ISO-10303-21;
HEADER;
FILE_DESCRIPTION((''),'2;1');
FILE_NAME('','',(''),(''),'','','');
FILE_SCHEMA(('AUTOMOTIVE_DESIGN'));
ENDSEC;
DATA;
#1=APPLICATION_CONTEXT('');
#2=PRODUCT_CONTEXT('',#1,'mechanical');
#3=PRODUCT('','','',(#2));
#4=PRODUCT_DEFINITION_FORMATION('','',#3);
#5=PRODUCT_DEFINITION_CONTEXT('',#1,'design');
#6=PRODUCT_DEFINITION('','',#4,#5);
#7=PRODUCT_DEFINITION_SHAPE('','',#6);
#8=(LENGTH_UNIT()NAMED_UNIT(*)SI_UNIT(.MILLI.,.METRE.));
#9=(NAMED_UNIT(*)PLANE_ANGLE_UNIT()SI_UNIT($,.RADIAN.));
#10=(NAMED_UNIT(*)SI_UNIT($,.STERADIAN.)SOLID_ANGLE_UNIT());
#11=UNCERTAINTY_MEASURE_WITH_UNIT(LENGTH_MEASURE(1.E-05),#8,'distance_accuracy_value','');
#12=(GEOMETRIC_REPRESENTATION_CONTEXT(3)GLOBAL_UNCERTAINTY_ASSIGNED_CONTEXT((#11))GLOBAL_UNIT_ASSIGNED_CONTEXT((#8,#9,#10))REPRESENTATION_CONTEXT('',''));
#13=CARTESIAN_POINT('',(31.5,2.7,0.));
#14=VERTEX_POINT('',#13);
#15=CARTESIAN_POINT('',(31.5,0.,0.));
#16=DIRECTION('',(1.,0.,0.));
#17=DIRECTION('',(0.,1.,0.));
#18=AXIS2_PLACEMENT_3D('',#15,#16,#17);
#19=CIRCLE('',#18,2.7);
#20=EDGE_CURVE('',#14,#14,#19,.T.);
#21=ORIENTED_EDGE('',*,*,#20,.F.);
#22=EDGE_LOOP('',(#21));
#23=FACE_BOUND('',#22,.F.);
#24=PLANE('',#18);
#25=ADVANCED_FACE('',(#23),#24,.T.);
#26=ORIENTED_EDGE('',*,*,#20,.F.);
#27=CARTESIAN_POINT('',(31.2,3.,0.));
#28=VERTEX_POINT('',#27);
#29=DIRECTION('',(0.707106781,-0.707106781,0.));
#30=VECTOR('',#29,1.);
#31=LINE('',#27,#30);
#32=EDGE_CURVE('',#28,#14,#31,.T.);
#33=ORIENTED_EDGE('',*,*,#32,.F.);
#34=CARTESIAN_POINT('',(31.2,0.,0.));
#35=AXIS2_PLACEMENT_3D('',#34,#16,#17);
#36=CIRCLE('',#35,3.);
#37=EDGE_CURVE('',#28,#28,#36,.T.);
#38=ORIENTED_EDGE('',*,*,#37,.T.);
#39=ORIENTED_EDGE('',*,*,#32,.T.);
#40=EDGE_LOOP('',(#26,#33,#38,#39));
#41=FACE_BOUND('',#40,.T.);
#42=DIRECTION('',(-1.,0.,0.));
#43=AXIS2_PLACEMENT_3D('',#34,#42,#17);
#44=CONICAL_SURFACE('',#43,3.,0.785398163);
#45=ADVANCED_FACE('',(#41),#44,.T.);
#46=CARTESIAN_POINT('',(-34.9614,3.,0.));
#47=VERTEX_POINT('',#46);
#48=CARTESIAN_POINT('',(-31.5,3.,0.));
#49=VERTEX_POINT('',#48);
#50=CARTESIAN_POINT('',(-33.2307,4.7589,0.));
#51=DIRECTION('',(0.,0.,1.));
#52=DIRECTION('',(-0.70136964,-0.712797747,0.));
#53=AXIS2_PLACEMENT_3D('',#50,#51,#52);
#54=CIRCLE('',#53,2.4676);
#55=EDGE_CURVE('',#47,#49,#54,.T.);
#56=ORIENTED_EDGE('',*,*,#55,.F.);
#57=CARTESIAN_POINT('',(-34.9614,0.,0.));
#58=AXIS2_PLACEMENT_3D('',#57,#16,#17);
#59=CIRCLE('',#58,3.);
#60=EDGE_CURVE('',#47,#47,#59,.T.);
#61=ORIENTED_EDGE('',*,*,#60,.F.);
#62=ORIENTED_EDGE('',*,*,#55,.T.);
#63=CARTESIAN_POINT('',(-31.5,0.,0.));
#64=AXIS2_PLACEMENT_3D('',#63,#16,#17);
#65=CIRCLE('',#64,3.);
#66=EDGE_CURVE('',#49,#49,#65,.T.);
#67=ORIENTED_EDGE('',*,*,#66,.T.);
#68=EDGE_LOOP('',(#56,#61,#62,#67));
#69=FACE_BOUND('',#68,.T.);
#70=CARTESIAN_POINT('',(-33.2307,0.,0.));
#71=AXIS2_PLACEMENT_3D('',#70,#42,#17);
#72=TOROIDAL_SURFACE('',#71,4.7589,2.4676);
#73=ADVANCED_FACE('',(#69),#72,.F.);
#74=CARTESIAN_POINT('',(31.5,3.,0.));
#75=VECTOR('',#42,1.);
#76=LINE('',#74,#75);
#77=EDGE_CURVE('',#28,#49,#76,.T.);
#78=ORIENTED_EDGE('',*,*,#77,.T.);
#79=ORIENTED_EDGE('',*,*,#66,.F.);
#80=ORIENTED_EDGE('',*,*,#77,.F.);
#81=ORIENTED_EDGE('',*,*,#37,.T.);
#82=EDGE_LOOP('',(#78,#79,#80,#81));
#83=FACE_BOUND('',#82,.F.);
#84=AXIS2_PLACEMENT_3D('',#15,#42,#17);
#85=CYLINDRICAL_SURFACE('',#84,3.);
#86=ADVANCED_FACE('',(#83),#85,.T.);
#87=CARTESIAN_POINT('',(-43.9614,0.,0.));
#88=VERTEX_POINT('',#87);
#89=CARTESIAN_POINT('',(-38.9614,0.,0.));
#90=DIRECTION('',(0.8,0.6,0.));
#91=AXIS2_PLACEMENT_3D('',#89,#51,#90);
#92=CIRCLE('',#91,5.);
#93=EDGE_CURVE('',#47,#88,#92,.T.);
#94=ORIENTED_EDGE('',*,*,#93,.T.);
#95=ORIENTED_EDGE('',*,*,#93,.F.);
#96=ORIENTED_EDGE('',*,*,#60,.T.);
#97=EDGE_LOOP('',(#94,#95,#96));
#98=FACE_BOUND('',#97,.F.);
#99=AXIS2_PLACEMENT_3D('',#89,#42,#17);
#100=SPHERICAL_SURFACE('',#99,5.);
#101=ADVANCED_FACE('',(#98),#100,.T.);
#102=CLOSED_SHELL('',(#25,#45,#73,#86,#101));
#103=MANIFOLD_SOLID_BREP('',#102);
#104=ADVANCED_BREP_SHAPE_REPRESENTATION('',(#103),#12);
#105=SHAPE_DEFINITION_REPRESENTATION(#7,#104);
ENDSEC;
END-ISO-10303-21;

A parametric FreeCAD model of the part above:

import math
import FreeCAD as App
import Part
import Sketcher

V = App.Vector
Q = App.Units.Quantity


def edges_at(feature, points):
    """Names of the edges that pass closest to the given points."""
    edges = feature.Shape.Edges
    near = lambda p: min(range(len(edges)), key=lambda i: edges[i].distToShape(Part.Vertex(*p))[0])
    return sorted({f"Edge{near(p) + 1}" for p in points})


def add_polygon(sketch, points):
    """Adds a closed chain of lines whose ends are joined by coincident constraints."""
    first, n = sketch.GeometryCount, len(points)
    for a, b in zip(points, points[1:] + points[:1]):
        sketch.addGeometry(Part.LineSegment(App.Vector(*a, 0), App.Vector(*b, 0)), False)
    for i in range(n):
        sketch.addConstraint(Sketcher.Constraint("Coincident", first + i, 2, first + (i + 1) % n, 1))

doc = App.newDocument("Part")
body = doc.addObject("PartDesign::Body", "Body")

sketch1 = body.newObject("Sketcher::SketchObject", "Sketch")
sketch1.AttachmentSupport = (doc.getObject("XY_Plane"), [""])
sketch1.MapMode = "FlatFace"
add_polygon(sketch1, [(-31.5, 0), (31.5, 0), (31.5, 3), (-31.5, 3)])
sketch1.addConstraint([
    Sketcher.Constraint("Horizontal", 0),
    Sketcher.Constraint("Vertical", 1),
    Sketcher.Constraint("Horizontal", 2),
    Sketcher.Constraint("Vertical", 3),
    Sketcher.Constraint("Symmetric", 0, 2, 3, 2, -1, 1),
    Sketcher.Constraint("DistanceX", 0, 1, 0, 2, Q("63 mm")),
    Sketcher.Constraint("DistanceY", 1, 1, 1, 2, Q("3 mm")),
])
revolution = body.newObject("PartDesign::Revolution", "Revolution")
revolution.Profile = sketch1
revolution.ReferenceAxis = (sketch1, ["H_Axis"])
revolution.Angle = 360
doc.recompute()

chamfer = body.newObject("PartDesign::Chamfer", "Chamfer")
chamfer.Base = (revolution, edges_at(revolution, [(31.5, -3, 0)]))
chamfer.Size = 0.3

sketch2 = body.newObject("Sketcher::SketchObject", "Sketch001")
sketch2.AttachmentSupport = (doc.getObject("XY_Plane"), [""])
sketch2.MapMode = "FlatFace"
sketch2.addGeometry([
    Part.LineSegment(V(-43.9614, 0, 0), V(-31.5, 0, 0)),
    Part.LineSegment(V(-31.5, 0, 0), V(-31.5, 3, 0)),
    Part.ArcOfCircle(Part.Circle(V(-33.2307, 4.7589, 0), V(0, 0, 1), 2.4676), math.radians(-134.536994), math.radians(-45.463006)),
    Part.ArcOfCircle(Part.Circle(V(-38.9614, 0, 0), V(0, 0, 1), 5), math.radians(36.869898), math.radians(180)),
], False)
sketch2.addConstraint([
    Sketcher.Constraint("Coincident", 0, 2, 1, 1),
    Sketcher.Constraint("Coincident", 1, 2, 2, 2),
    Sketcher.Constraint("Coincident", 2, 1, 3, 1),
    Sketcher.Constraint("Coincident", 3, 2, 0, 1),
    Sketcher.Constraint("Horizontal", 0),
    Sketcher.Constraint("Vertical", 1),
    Sketcher.Constraint("PointOnObject", 3, 3, -1),
    Sketcher.Constraint("PointOnObject", 0, 2, -1),
    Sketcher.Constraint("Horizontal", 1, 2, 2, 1),
    Sketcher.Constraint("Radius", 3, Q("5 mm")),
    Sketcher.Constraint("DistanceY", 1, 1, 1, 2, Q("3 mm")),
    Sketcher.Constraint("DistanceX", 0, 2, -1, 1, Q("31.5 mm")),
    Sketcher.Constraint("Radius", 2, Q("2.4676 mm")),
    Sketcher.Constraint("DistanceX", 0, 1, 0, 2, Q("12.4614 mm")),
])
revolution2 = body.newObject("PartDesign::Revolution", "Revolution001")
revolution2.Profile = sketch2
revolution2.ReferenceAxis = (sketch2, ["H_Axis"])
revolution2.Angle = 360

doc.recompute()
